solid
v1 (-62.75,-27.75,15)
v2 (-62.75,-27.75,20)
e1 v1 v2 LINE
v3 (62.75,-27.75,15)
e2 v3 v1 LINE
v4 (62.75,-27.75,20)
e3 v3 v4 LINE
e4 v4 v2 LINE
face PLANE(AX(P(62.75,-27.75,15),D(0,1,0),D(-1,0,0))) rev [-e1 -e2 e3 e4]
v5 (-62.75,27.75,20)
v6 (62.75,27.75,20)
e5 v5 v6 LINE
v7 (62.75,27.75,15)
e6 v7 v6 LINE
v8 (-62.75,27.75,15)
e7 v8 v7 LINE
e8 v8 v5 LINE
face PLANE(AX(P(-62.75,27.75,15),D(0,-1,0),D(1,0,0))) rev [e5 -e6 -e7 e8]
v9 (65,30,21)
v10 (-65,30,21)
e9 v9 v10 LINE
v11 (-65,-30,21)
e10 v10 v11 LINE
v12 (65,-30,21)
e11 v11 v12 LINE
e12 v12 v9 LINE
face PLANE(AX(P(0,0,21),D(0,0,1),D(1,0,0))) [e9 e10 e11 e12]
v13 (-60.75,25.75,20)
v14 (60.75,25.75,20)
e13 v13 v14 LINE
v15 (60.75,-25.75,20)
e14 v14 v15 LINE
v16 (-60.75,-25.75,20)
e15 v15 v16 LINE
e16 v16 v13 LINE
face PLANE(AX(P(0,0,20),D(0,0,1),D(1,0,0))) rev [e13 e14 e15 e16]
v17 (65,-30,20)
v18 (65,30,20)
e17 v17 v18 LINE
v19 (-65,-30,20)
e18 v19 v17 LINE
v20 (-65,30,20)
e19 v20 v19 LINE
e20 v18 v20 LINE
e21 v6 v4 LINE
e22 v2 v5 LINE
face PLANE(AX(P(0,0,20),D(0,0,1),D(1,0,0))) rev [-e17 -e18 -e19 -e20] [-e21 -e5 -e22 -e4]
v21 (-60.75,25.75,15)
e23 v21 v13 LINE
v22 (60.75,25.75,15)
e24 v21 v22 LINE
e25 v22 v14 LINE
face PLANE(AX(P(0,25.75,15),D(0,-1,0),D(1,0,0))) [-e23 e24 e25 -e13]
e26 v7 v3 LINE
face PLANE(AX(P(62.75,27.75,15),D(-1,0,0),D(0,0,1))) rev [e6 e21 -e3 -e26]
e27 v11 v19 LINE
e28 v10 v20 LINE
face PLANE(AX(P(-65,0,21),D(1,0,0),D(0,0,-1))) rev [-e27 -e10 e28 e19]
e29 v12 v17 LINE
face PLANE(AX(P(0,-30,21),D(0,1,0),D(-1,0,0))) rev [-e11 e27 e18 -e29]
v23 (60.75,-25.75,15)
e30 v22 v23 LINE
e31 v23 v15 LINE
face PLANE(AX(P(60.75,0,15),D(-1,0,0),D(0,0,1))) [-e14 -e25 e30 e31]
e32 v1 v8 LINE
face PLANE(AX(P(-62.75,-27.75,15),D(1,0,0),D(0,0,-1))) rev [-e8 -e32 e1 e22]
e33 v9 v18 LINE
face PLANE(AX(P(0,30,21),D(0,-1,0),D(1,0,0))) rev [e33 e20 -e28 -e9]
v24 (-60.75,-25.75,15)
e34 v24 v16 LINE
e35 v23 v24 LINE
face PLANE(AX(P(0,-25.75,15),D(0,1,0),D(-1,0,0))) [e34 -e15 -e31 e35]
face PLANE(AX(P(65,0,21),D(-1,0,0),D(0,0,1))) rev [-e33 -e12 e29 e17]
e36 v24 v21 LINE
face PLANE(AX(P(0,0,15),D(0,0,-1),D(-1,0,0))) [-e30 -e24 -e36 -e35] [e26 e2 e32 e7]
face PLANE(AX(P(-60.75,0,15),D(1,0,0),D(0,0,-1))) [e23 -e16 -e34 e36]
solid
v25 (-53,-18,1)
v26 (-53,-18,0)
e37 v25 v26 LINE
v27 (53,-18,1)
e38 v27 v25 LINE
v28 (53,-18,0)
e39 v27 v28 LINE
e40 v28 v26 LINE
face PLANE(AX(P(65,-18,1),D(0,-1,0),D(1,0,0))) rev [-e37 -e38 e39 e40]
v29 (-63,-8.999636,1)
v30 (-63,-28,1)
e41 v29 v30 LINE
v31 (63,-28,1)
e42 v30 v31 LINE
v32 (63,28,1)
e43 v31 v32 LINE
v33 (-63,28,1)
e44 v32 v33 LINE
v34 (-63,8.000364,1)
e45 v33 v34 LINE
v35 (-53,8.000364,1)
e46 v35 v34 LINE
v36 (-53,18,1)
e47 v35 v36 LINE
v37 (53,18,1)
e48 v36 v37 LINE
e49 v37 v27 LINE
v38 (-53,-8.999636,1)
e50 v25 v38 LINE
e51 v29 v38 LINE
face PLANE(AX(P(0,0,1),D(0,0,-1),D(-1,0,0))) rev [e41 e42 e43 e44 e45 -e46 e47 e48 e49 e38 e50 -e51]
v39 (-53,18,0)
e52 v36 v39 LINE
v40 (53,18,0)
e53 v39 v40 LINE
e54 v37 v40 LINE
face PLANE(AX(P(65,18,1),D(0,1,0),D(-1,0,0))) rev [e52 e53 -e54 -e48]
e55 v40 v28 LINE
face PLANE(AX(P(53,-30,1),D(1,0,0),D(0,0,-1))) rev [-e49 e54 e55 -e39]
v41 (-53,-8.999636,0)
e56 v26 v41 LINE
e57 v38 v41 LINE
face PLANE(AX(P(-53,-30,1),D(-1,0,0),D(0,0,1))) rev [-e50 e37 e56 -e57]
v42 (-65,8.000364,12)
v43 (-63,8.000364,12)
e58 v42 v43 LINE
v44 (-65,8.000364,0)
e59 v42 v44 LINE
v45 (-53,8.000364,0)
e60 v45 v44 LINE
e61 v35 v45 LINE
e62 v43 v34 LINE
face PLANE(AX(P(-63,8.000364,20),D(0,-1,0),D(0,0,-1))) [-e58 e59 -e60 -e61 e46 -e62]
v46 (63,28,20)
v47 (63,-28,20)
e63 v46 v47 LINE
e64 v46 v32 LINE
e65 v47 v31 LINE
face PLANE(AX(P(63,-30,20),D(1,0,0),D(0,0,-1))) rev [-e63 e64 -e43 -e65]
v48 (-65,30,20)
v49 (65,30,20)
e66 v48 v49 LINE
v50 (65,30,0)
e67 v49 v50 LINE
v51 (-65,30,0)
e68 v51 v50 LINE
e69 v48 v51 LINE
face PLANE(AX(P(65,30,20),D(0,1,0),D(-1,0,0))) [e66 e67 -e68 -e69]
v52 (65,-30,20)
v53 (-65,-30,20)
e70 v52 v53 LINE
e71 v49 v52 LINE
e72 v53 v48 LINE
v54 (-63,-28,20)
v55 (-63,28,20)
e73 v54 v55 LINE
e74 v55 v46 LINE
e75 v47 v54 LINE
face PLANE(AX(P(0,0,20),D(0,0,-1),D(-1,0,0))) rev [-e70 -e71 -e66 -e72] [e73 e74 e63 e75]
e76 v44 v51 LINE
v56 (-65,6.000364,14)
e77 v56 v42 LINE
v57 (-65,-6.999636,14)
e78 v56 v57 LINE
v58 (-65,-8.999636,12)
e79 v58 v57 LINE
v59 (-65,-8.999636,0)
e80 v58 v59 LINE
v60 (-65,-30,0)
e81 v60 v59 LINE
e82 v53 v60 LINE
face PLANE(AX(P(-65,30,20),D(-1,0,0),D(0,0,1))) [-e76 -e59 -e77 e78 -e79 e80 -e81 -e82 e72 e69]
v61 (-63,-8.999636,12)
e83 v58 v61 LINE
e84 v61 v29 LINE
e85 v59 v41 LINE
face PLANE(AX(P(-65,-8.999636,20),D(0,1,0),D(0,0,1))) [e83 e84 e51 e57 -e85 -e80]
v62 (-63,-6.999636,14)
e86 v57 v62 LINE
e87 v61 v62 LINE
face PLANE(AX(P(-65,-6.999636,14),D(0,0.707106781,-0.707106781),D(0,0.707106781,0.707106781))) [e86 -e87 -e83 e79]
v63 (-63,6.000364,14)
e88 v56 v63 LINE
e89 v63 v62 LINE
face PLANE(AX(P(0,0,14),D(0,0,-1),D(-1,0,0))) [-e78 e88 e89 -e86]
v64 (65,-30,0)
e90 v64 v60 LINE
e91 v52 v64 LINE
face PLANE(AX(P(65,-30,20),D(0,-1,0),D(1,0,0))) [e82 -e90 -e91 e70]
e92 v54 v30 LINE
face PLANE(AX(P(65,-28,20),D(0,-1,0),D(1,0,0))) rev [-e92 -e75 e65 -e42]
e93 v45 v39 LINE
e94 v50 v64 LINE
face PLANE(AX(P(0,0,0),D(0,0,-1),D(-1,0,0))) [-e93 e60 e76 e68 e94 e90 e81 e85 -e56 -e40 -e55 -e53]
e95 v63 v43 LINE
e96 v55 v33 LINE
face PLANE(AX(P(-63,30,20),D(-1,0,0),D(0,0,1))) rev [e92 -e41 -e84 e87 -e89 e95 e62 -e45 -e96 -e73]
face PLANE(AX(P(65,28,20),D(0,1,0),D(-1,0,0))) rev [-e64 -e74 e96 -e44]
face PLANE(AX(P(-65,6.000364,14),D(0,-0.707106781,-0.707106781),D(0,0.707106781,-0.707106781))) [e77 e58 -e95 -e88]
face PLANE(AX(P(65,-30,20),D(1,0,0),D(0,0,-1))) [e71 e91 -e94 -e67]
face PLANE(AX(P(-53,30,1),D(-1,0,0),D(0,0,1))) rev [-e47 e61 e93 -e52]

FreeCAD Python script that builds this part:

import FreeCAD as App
import Part
import Sketcher
from FreeCAD import Vector


def add_polygon(sketch, points):
    """Adds a closed chain of lines whose ends are joined by coincident constraints."""
    first, n = sketch.GeometryCount, len(points)
    for a, b in zip(points, points[1:] + points[:1]):
        sketch.addGeometry(Part.LineSegment(App.Vector(*a, 0), App.Vector(*b, 0)), False)
    for i in range(n):
        sketch.addConstraint(Sketcher.Constraint("Coincident", first + i, 2, first + (i + 1) % n, 1))

doc = App.newDocument("Part")
body = doc.addObject("PartDesign::Body", "Body")

sketch1 = body.newObject("Sketcher::SketchObject", "Sketch")
sketch1.AttachmentSupport = (doc.getObject("XY_Plane"), [""])
sketch1.MapMode = "FlatFace"
add_polygon(sketch1, [(-65, -9), (-65, -30), (65, -30), (65, 30), (-65, 30), (-65, 8), (-63, 8), (-63, 28), (63, 28), (63, -28), (-63, -28), (-63, -9)])
sketch1.addConstraint(Sketcher.Constraint("Vertical", 0))
sketch1.addConstraint(Sketcher.Constraint("Horizontal", 1))
sketch1.addConstraint(Sketcher.Constraint("Vertical", 2))
sketch1.addConstraint(Sketcher.Constraint("Horizontal", 3))
sketch1.addConstraint(Sketcher.Constraint("Vertical", 4))
sketch1.addConstraint(Sketcher.Constraint("Horizontal", 5))
sketch1.addConstraint(Sketcher.Constraint("Vertical", 6))
sketch1.addConstraint(Sketcher.Constraint("Horizontal", 7))
sketch1.addConstraint(Sketcher.Constraint("Vertical", 8))
sketch1.addConstraint(Sketcher.Constraint("Horizontal", 9))
sketch1.addConstraint(Sketcher.Constraint("Vertical", 10))
sketch1.addConstraint(Sketcher.Constraint("Horizontal", 11))
sketch1.addConstraint(Sketcher.Constraint("Symmetric", 0, 2, 2, 2, -1, 1))
sketch1.addConstraint(Sketcher.Constraint("Symmetric", 6, 2, 8, 2, -1, 1))
sketch1.addConstraint(Sketcher.Constraint("Vertical", 0, 2, 3, 2))
sketch1.addConstraint(Sketcher.Constraint("Vertical", 6, 2, 9, 2))
sketch1.addConstraint(Sketcher.Constraint("DistanceX", 1, 1, 1, 2, 130.0))
sketch1.addConstraint(Sketcher.Constraint("DistanceX", 5, 1, 5, 2, 2.0))
sketch1.addConstraint(Sketcher.Constraint("DistanceY", 2, 1, 2, 2, 60.0))
sketch1.addConstraint(Sketcher.Constraint("DistanceY", 8, 2, 8, 1, 56.0))
sketch1.addConstraint(Sketcher.Constraint("DistanceY", 10, 2, 5, 2, 17.0))
sketch1.addConstraint(Sketcher.Constraint("DistanceY", 0, 2, 0, 1, 21.000364))
pad1 = body.newObject("PartDesign::Pad", "Pad")
pad1.Profile = sketch1
pad1.Length = 20

sketch2 = body.newObject("Sketcher::SketchObject", "Sketch001")
sketch2.AttachmentSupport = (doc.getObject("XY_Plane"), [""])
sketch2.MapMode = "FlatFace"
add_polygon(sketch2, [(-65, -9), (-65, -30), (65, -30), (65, 30), (-65, 30), (-65, 8), (-53, 8), (-53, 18), (53, 18), (53, -18), (-53, -18), (-53, -9)])
sketch2.addConstraint(Sketcher.Constraint("Vertical", 0))
sketch2.addConstraint(Sketcher.Constraint("Horizontal", 1))
sketch2.addConstraint(Sketcher.Constraint("Vertical", 2))
sketch2.addConstraint(Sketcher.Constraint("Horizontal", 3))
sketch2.addConstraint(Sketcher.Constraint("Vertical", 4))
sketch2.addConstraint(Sketcher.Constraint("Horizontal", 5))
sketch2.addConstraint(Sketcher.Constraint("Vertical", 6))
sketch2.addConstraint(Sketcher.Constraint("Horizontal", 7))
sketch2.addConstraint(Sketcher.Constraint("Vertical", 8))
sketch2.addConstraint(Sketcher.Constraint("Horizontal", 9))
sketch2.addConstraint(Sketcher.Constraint("Vertical", 10))
sketch2.addConstraint(Sketcher.Constraint("Horizontal", 11))
sketch2.addConstraint(Sketcher.Constraint("Symmetric", 0, 2, 2, 2, -1, 1))
sketch2.addConstraint(Sketcher.Constraint("Symmetric", 6, 2, 8, 2, -1, 1))
sketch2.addConstraint(Sketcher.Constraint("Vertical", 0, 2, 3, 2))
sketch2.addConstraint(Sketcher.Constraint("Vertical", 6, 2, 9, 2))
sketch2.addConstraint(Sketcher.Constraint("DistanceX", 1, 1, 1, 2, 130.0))
sketch2.addConstraint(Sketcher.Constraint("DistanceX", 5, 1, 5, 2, 12.0))
sketch2.addConstraint(Sketcher.Constraint("DistanceY", 2, 1, 2, 2, 60.0))
sketch2.addConstraint(Sketcher.Constraint("DistanceY", 8, 2, 8, 1, 36.0))
sketch2.addConstraint(Sketcher.Constraint("DistanceY", 10, 2, 5, 2, 17.0))
sketch2.addConstraint(Sketcher.Constraint("DistanceY", 0, 2, 0, 1, 21.000364))
pad2 = body.newObject("PartDesign::Pad", "Pad001")
pad2.Profile = sketch2
pad2.Length = 1
body2 = doc.addObject("PartDesign::Body", "Body001")

sketch3 = body2.newObject("Sketcher::SketchObject", "Sketch002")
sketch3.AttachmentSupport = (doc.getObject("XY_Plane001"), [""])
sketch3.MapMode = "FlatFace"
sketch3.AttachmentOffset = App.Placement(Vector(0, 0, 14), App.Rotation())
add_polygon(sketch3, [(-65, 8), (-65, -9), (-63, -9), (-63, 8)])
sketch3.addConstraint(Sketcher.Constraint("Vertical", 0))
sketch3.addConstraint(Sketcher.Constraint("Horizontal", 1))
sketch3.addConstraint(Sketcher.Constraint("Vertical", 2))
sketch3.addConstraint(Sketcher.Constraint("Horizontal", 3))
sketch3.addConstraint(Sketcher.Constraint("DistanceX", 1, 1, 1, 2, 2.0))
sketch3.addConstraint(Sketcher.Constraint("DistanceY", 0, 2, 0, 1, 17.0))
sketch3.addConstraint(Sketcher.Constraint("DistanceX", 0, 2, -1, 1, 65.0))
sketch3.addConstraint(Sketcher.Constraint("DistanceY", 0, 2, -1, 1, 8.999636))
pad3 = body2.newObject("PartDesign::Pad", "Pad002")
pad3.Profile = sketch3
pad3.Length = 6
doc.recompute()

boolean = body.newObject("PartDesign::Boolean", "Boolean")
boolean.Type = "Fuse"
boolean.addObjects([body2])

sketch4 = body.newObject("Sketcher::SketchObject", "Sketch003")
sketch4.AttachmentSupport = (doc.getObject("YZ_Plane"), [""])
sketch4.MapMode = "FlatFace"
sketch4.AttachmentOffset = App.Placement(Vector(0, 0, -63), App.Rotation())
add_polygon(sketch4, [(-9, 12), (-7, 14), (-9, 14)])
add_polygon(sketch4, [(6, 14), (8, 12), (8, 14)])
sketch4.addConstraint(Sketcher.Constraint("Horizontal", 1))
sketch4.addConstraint(Sketcher.Constraint("Vertical", 2))
sketch4.addConstraint(Sketcher.Constraint("Vertical", 4))
sketch4.addConstraint(Sketcher.Constraint("Horizontal", 5))
sketch4.addConstraint(Sketcher.Constraint("Perpendicular", 0, 3))
sketch4.addConstraint(Sketcher.Constraint("Horizontal", 2, 2, 3, 2))
sketch4.addConstraint(Sketcher.Constraint("Horizontal", 1, 2, 4, 2))
sketch4.addConstraint(Sketcher.Constraint("Equal", 1, 5))
sketch4.addConstraint(Sketcher.Constraint("DistanceX", 1, 2, 1, 1, 2.0))
sketch4.addConstraint(Sketcher.Constraint("DistanceY", -1, 1, 0, 2, 14.0))
sketch4.addConstraint(Sketcher.Constraint("DistanceX", 0, 2, 3, 2, 15.0))
sketch4.addConstraint(Sketcher.Constraint("DistanceX", 0, 2, -1, 1, 6.999636))
pad4 = body.newObject("PartDesign::Pad", "Pad003")
pad4.Profile = sketch4
pad4.Length = 2
pad4.Reversed = True
body3 = doc.addObject("PartDesign::Body", "Body002")

sketch5 = body3.newObject("Sketcher::SketchObject", "Sketch004")
sketch5.AttachmentSupport = (doc.getObject("XY_Plane002"), [""])
sketch5.MapMode = "FlatFace"
sketch5.AttachmentOffset = App.Placement(Vector(0, 0, 20), App.Rotation())
add_polygon(sketch5, [(-65, 30), (-65, -30), (65, -30), (65, 30)])
sketch5.addConstraint(Sketcher.Constraint("Vertical", 0))
sketch5.addConstraint(Sketcher.Constraint("Horizontal", 1))
sketch5.addConstraint(Sketcher.Constraint("Vertical", 2))
sketch5.addConstraint(Sketcher.Constraint("Horizontal", 3))
sketch5.addConstraint(Sketcher.Constraint("Symmetric", 0, 2, 2, 2, -1, 1))
sketch5.addConstraint(Sketcher.Constraint("DistanceX", 1, 1, 1, 2, 130.0))
sketch5.addConstraint(Sketcher.Constraint("DistanceY", 0, 2, 0, 1, 60.0))
pad5 = body3.newObject("PartDesign::Pad", "Pad004")
pad5.Profile = sketch5
pad5.Length = 1

sketch6 = body3.newObject("Sketcher::SketchObject", "Sketch005")
sketch6.AttachmentSupport = (doc.getObject("XY_Plane002"), [""])
sketch6.MapMode = "FlatFace"
sketch6.AttachmentOffset = App.Placement(Vector(0, 0, 20), App.Rotation())
add_polygon(sketch6, [(-63, 28), (-63, -28), (63, -28), (63, 28)])
add_polygon(sketch6, [(61, -26), (-61, -26), (-61, 26), (61, 26)])
sketch6.addConstraint(Sketcher.Constraint("Vertical", 0))
sketch6.addConstraint(Sketcher.Constraint("Horizontal", 1))
sketch6.addConstraint(Sketcher.Constraint("Vertical", 2))
sketch6.addConstraint(Sketcher.Constraint("Horizontal", 3))
sketch6.addConstraint(Sketcher.Constraint("Horizontal", 4))
sketch6.addConstraint(Sketcher.Constraint("Vertical", 5))
sketch6.addConstraint(Sketcher.Constraint("Horizontal", 6))
sketch6.addConstraint(Sketcher.Constraint("Vertical", 7))
sketch6.addConstraint(Sketcher.Constraint("Symmetric", 0, 2, 2, 2, -1, 1))
sketch6.addConstraint(Sketcher.Constraint("Symmetric", 4, 2, 6, 2, -1, 1))
sketch6.addConstraint(Sketcher.Constraint("DistanceX", 1, 1, 1, 2, 125.5))
sketch6.addConstraint(Sketcher.Constraint("DistanceX", 4, 2, 4, 1, 121.5))
sketch6.addConstraint(Sketcher.Constraint("DistanceY", 0, 2, 0, 1, 55.5))
sketch6.addConstraint(Sketcher.Constraint("DistanceY", 5, 1, 5, 2, 51.5))
pad6 = body3.newObject("PartDesign::Pad", "Pad005")
pad6.Profile = sketch6
pad6.Length = 5
pad6.Reversed = True

doc.recompute()
